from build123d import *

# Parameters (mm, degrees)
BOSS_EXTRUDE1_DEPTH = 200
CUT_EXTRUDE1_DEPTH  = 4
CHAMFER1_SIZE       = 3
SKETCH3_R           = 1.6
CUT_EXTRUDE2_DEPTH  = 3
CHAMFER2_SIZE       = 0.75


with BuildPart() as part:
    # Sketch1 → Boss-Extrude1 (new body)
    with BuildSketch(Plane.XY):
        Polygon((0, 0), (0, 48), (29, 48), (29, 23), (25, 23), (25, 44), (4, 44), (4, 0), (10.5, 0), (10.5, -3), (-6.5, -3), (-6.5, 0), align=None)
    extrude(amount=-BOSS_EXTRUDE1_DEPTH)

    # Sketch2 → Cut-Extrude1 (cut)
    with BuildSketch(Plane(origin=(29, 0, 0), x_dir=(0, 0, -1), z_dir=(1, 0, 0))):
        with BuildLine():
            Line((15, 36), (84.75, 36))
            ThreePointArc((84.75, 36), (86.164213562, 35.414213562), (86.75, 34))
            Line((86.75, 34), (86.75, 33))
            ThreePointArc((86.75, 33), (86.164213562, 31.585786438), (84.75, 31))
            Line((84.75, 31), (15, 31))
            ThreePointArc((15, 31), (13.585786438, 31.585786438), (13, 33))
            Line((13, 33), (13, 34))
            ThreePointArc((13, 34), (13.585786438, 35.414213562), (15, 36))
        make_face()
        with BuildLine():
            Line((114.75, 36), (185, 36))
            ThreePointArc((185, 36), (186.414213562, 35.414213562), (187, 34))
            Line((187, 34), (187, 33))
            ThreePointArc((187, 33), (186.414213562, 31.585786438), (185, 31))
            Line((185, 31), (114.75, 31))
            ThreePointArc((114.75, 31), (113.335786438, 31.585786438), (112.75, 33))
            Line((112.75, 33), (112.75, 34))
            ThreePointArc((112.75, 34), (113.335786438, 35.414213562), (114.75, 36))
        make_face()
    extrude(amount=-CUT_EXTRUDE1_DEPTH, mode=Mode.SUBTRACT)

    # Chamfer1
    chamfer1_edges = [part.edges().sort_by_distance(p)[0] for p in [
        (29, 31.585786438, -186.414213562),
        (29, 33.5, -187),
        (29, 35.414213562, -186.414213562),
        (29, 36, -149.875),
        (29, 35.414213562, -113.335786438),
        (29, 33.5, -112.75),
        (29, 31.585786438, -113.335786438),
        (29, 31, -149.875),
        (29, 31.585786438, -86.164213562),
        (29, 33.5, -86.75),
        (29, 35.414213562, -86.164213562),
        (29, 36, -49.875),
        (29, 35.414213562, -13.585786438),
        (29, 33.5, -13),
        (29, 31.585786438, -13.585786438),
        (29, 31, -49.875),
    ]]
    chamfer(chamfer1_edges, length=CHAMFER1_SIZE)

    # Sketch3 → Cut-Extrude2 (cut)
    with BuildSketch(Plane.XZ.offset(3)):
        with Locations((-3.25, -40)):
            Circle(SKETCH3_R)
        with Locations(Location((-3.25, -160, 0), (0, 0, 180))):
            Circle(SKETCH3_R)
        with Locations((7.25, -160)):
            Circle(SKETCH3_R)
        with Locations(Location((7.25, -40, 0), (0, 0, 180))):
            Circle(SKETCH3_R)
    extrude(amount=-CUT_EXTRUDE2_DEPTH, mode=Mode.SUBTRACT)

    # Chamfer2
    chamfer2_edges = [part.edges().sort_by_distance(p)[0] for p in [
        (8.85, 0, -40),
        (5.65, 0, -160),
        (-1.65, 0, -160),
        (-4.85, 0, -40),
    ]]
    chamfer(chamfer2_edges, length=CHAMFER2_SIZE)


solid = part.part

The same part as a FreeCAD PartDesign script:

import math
import FreeCAD as App
import Part
import Sketcher

V = App.Vector
Q = App.Units.Quantity


def edges_at(feature, points):
    """Names of the edges that pass closest to the given points."""
    edges = feature.Shape.Edges
    near = lambda p: min(range(len(edges)), key=lambda i: edges[i].distToShape(Part.Vertex(*p))[0])
    return sorted({f"Edge{near(p) + 1}" for p in points})


def add_polygon(sketch, points):
    """Adds a closed chain of lines whose ends are joined by coincident constraints."""
    first, n = sketch.GeometryCount, len(points)
    for a, b in zip(points, points[1:] + points[:1]):
        sketch.addGeometry(Part.LineSegment(App.Vector(*a, 0), App.Vector(*b, 0)), False)
    for i in range(n):
        sketch.addConstraint(Sketcher.Constraint("Coincident", first + i, 2, first + (i + 1) % n, 1))

doc = App.newDocument("Part")
params = doc.addObject("Spreadsheet::Sheet", "Params")
for row, (alias, value) in enumerate([
    ("sketch1_width", "17 mm"),
    ("sketch1_width2", "21 mm"),
    ("sketch1_width3", "4 mm"),
    ("sketch1_width4", "29 mm"),
    ("sketch1_height", "48 mm"),
    ("pad1_length", "200 mm"),
    ("sketch2_radius", "2 mm"),
    ("sketch2_width", "1 mm"),
    ("sketch2_height", "69.75 mm"),
    ("pocket1_length", "4 mm"),
    ("chamfer_size", "3 mm"),
    ("sketch3_diameter", "3.2 mm"),
    ("pocket2_length", "3 mm"),
    ("chamfer2_size", "0.75 mm"),
], start=1):
    params.set(f"A{row}", alias)
    params.set(f"B{row}", "=" + value)
    params.setAlias(f"B{row}", alias)

body = doc.addObject("PartDesign::Body", "Body")

# Sketch on XY plane
sketch1 = body.newObject("Sketcher::SketchObject", "Sketch")
sketch1.AttachmentSupport = (doc.getObject("XY_Plane"), [""])
sketch1.MapMode = "FlatFace"
add_polygon(sketch1, [(0, 48), (0, 0), (-6.5, 0), (-6.5, -3), (10.5, -3), (10.5, 0), (4, 0), (4, 44), (25, 44), (25, 23), (29, 23), (29, 48)])  # lines 0-11
sketch1.addConstraint(Sketcher.Constraint("Vertical", 0))
sketch1.addConstraint(Sketcher.Constraint("Horizontal", 1))
sketch1.addConstraint(Sketcher.Constraint("Vertical", 2))
sketch1.addConstraint(Sketcher.Constraint("Horizontal", 3))
sketch1.addConstraint(Sketcher.Constraint("Vertical", 4))
sketch1.addConstraint(Sketcher.Constraint("Horizontal", 5))
sketch1.addConstraint(Sketcher.Constraint("Vertical", 6))
sketch1.addConstraint(Sketcher.Constraint("Horizontal", 7))
sketch1.addConstraint(Sketcher.Constraint("Vertical", 8))
sketch1.addConstraint(Sketcher.Constraint("Horizontal", 9))
sketch1.addConstraint(Sketcher.Constraint("Vertical", 10))
sketch1.addConstraint(Sketcher.Constraint("Horizontal", 11))
sketch1.addConstraint(Sketcher.Constraint("Coincident", 0, 2, -1, 1))
sketch1.addConstraint(Sketcher.Constraint("PointOnObject", 4, 2, -1))
sketch1.addConstraint(Sketcher.Constraint("Equal", 1, 5))
sketch1.addConstraint(Sketcher.Constraint("Equal", 7, 8))
sketch1.addConstraint(Sketcher.Constraint("DistanceX", 3, 1, 3, 2, Q("17 mm")))
sketch1.addConstraint(Sketcher.Constraint("DistanceX", 7, 1, 7, 2, Q("21 mm")))
sketch1.addConstraint(Sketcher.Constraint("DistanceX", 9, 1, 9, 2, Q("4 mm")))
sketch1.addConstraint(Sketcher.Constraint("DistanceX", 11, 2, 11, 1, Q("29 mm")))
sketch1.addConstraint(Sketcher.Constraint("DistanceY", 0, 2, 0, 1, Q("48 mm")))
sketch1.addConstraint(Sketcher.Constraint("DistanceY", 2, 2, 2, 1, Q("3 mm")))
sketch1.addConstraint(Sketcher.Constraint("DistanceY", 6, 1, 6, 2, Q("44 mm")))
sketch1.setExpression("Constraints[28]", "Params.sketch1_width")
sketch1.setExpression("Constraints[29]", "Params.sketch1_width2")
sketch1.setExpression("Constraints[30]", "Params.sketch1_width3")
sketch1.setExpression("Constraints[31]", "Params.sketch1_width4")
sketch1.setExpression("Constraints[32]", "Params.sketch1_height")
pad1 = body.newObject("PartDesign::Pad", "Pad")
pad1.Profile = sketch1
pad1.setExpression("Length", "Params.pad1_length")
pad1.Reversed = True

# Sketch on YZ plane
sketch2 = body.newObject("Sketcher::SketchObject", "Sketch001")
sketch2.AttachmentSupport = (doc.getObject("YZ_Plane"), [""])
sketch2.MapMode = "FlatFace"
sketch2.AttachmentOffset = App.Placement(V(0, 0, 29), App.Rotation())
sketch2.addGeometry(Part.LineSegment(V(36, -84.8, 0), V(36, -15, 0)), False)
sketch2.addGeometry(Part.ArcOfCircle(Part.Circle(V(34, -15, 0), V(0, 0, 1), 2), math.radians(0), math.radians(90)), False)
sketch2.addGeometry(Part.LineSegment(V(34, -13, 0), V(33, -13, 0)), False)
sketch2.addGeometry(Part.ArcOfCircle(Part.Circle(V(33, -15, 0), V(0, 0, 1), 2), math.radians(90), math.radians(180)), False)
sketch2.addGeometry(Part.LineSegment(V(31, -15, 0), V(31, -84.8, 0)), False)
sketch2.addGeometry(Part.ArcOfCircle(Part.Circle(V(33, -84.7, 0), V(0, 0, 1), 2), math.radians(-180), math.radians(-90)), False)
sketch2.addGeometry(Part.LineSegment(V(33, -86.8, 0), V(34, -86.8, 0)), False)
sketch2.addGeometry(Part.ArcOfCircle(Part.Circle(V(34, -84.7, 0), V(0, 0, 1), 2), math.radians(-90), math.radians(0)), False)
sketch2.addGeometry(Part.LineSegment(V(36, -185, 0), V(36, -114.8, 0)), False)
sketch2.addGeometry(Part.ArcOfCircle(Part.Circle(V(34, -114.8, 0), V(0, 0, 1), 2), math.radians(0), math.radians(90)), False)
sketch2.addGeometry(Part.LineSegment(V(34, -112.8, 0), V(33, -112.8, 0)), False)
sketch2.addGeometry(Part.ArcOfCircle(Part.Circle(V(33, -114.8, 0), V(0, 0, 1), 2), math.radians(90), math.radians(180)), False)
sketch2.addGeometry(Part.LineSegment(V(31, -114.8, 0), V(31, -185, 0)), False)
sketch2.addGeometry(Part.ArcOfCircle(Part.Circle(V(33, -185, 0), V(0, 0, 1), 2), math.radians(-180), math.radians(-90)), False)
sketch2.addGeometry(Part.LineSegment(V(33, -187, 0), V(34, -187, 0)), False)
sketch2.addGeometry(Part.ArcOfCircle(Part.Circle(V(34, -185, 0), V(0, 0, 1), 2), math.radians(-90), math.radians(0)), False)
sketch2.addConstraint(Sketcher.Constraint("Tangent", 0, 2, 1, 1))
sketch2.addConstraint(Sketcher.Constraint("Tangent", 1, 2, 2, 1))
sketch2.addConstraint(Sketcher.Constraint("Tangent", 2, 2, 3, 1))
sketch2.addConstraint(Sketcher.Constraint("Tangent", 3, 2, 4, 1))
sketch2.addConstraint(Sketcher.Constraint("Tangent", 4, 2, 5, 1))
sketch2.addConstraint(Sketcher.Constraint("Tangent", 5, 2, 6, 1))
sketch2.addConstraint(Sketcher.Constraint("Tangent", 6, 2, 7, 1))
sketch2.addConstraint(Sketcher.Constraint("Tangent", 7, 2, 0, 1))
sketch2.addConstraint(Sketcher.Constraint("Tangent", 8, 2, 9, 1))
sketch2.addConstraint(Sketcher.Constraint("Tangent", 9, 2, 10, 1))
sketch2.addConstraint(Sketcher.Constraint("Tangent", 10, 2, 11, 1))
sketch2.addConstraint(Sketcher.Constraint("Tangent", 11, 2, 12, 1))
sketch2.addConstraint(Sketcher.Constraint("Tangent", 12, 2, 13, 1))
sketch2.addConstraint(Sketcher.Constraint("Tangent", 13, 2, 14, 1))
sketch2.addConstraint(Sketcher.Constraint("Tangent", 14, 2, 15, 1))
sketch2.addConstraint(Sketcher.Constraint("Tangent", 15, 2, 8, 1))
sketch2.addConstraint(Sketcher.Constraint("Vertical", 0))
sketch2.addConstraint(Sketcher.Constraint("Horizontal", 2))
sketch2.addConstraint(Sketcher.Constraint("Vertical", 4))
sketch2.addConstraint(Sketcher.Constraint("Horizontal", 6))
sketch2.addConstraint(Sketcher.Constraint("Vertical", 8))
sketch2.addConstraint(Sketcher.Constraint("Horizontal", 10))
sketch2.addConstraint(Sketcher.Constraint("Vertical", 12))
sketch2.addConstraint(Sketcher.Constraint("Horizontal", 14))
sketch2.addConstraint(Sketcher.Constraint("Equal", 1, 3))
sketch2.addConstraint(Sketcher.Constraint("Equal", 3, 5))
sketch2.addConstraint(Sketcher.Constraint("Equal", 5, 7))
sketch2.addConstraint(Sketcher.Constraint("Equal", 7, 9))
sketch2.addConstraint(Sketcher.Constraint("Equal", 9, 11))
sketch2.addConstraint(Sketcher.Constraint("Equal", 11, 13))
sketch2.addConstraint(Sketcher.Constraint("Equal", 13, 15))
sketch2.addConstraint(Sketcher.Constraint("Vertical", 7, 3, 9, 3))
sketch2.addConstraint(Sketcher.Constraint("Vertical", 5, 3, 11, 3))
sketch2.addConstraint(Sketcher.Constraint("Radius", 1, Q("2 mm")))
sketch2.addConstraint(Sketcher.Constraint("DistanceX", 2, 2, 2, 1, Q("1 mm")))
sketch2.addConstraint(Sketcher.Constraint("DistanceX", -1, 1, 1, 3, Q("34 mm")))
sketch2.addConstraint(Sketcher.Constraint("DistanceY", 1, 3, -1, 1, Q("15 mm")))
sketch2.addConstraint(Sketcher.Constraint("DistanceY", 13, 3, -1, 1, Q("185 mm")))
sketch2.addConstraint(Sketcher.Constraint("DistanceY", 9, 3, 7, 3, Q("30 mm")))
sketch2.addConstraint(Sketcher.Constraint("DistanceY", 0, 1, 0, 2, Q("69.75 mm")))
sketch2.setExpression("Constraints[33]", "Params.sketch2_radius")
sketch2.setExpression("Constraints[34]", "Params.sketch2_width")
sketch2.setExpression("Constraints[39]", "Params.sketch2_height")
pocket1 = body.newObject("PartDesign::Pocket", "Pocket")
pocket1.Profile = sketch2
pocket1.setExpression("Length", "Params.pocket1_length")
doc.recompute()

chamfer = body.newObject("PartDesign::Chamfer", "Chamfer")
chamfer.Base = (pocket1, edges_at(pocket1, [
    (29, 31.586, -186.414),
    (29, 33.5, -187),
    (29, 35.414, -186.414),
    (29, 36, -149.875),
    (29, 35.414, -113.336),
    (29, 33.5, -112.75),
    (29, 31.586, -113.336),
    (29, 31, -149.875),
    (29, 31.586, -86.164),
    (29, 33.5, -86.75),
    (29, 35.414, -86.164),
    (29, 36, -49.875),
    (29, 35.414, -13.586),
    (29, 33.5, -13),
    (29, 31.586, -13.586),
    (29, 31, -49.875),
]))
chamfer.setExpression("Size", "Params.chamfer_size")

# Sketch on XZ plane
sketch3 = body.newObject("Sketcher::SketchObject", "Sketch002")
sketch3.AttachmentSupport = (doc.getObject("XZ_Plane"), [""])
sketch3.MapMode = "FlatFace"
sketch3.AttachmentOffset = App.Placement(V(0, 0, 3), App.Rotation())
sketch3.addGeometry(Part.Circle(V(-3.2, -40, 0), V(0, 0, 1), 1.6), False)
sketch3.addGeometry(Part.Circle(V(-3.2, -160, 0), V(0, 0, 1), 1.6), False)
sketch3.addGeometry(Part.Circle(V(7.2, -160, 0), V(0, 0, 1), 1.6), False)
sketch3.addGeometry(Part.Circle(V(7.2, -40, 0), V(0, 0, 1), 1.6), False)
sketch3.addConstraint(Sketcher.Constraint("Equal", 0, 1))
sketch3.addConstraint(Sketcher.Constraint("Equal", 1, 2))
sketch3.addConstraint(Sketcher.Constraint("Equal", 2, 3))
sketch3.addConstraint(Sketcher.Constraint("Horizontal", 1, 3, 2, 3))
sketch3.addConstraint(Sketcher.Constraint("Horizontal", 0, 3, 3, 3))
sketch3.addConstraint(Sketcher.Constraint("Vertical", 0, 3, 1, 3))
sketch3.addConstraint(Sketcher.Constraint("Vertical", 2, 3, 3, 3))
sketch3.addConstraint(Sketcher.Constraint("Diameter", 0, Q("3.2 mm")))
sketch3.addConstraint(Sketcher.Constraint("DistanceY", 0, 3, -1, 1, Q("40 mm")))
sketch3.addConstraint(Sketcher.Constraint("DistanceY", 1, 3, -1, 1, Q("160 mm")))
sketch3.addConstraint(Sketcher.Constraint("DistanceX", 1, 3, 2, 3, Q("10.5 mm")))
sketch3.addConstraint(Sketcher.Constraint("DistanceX", 0, 3, -1, 1, Q("3.25 mm")))
sketch3.setExpression("Constraints[7]", "Params.sketch3_diameter")
pocket2 = body.newObject("PartDesign::Pocket", "Pocket001")
pocket2.Profile = sketch3
pocket2.setExpression("Length", "Params.pocket2_length")
doc.recompute()

chamfer2 = body.newObject("PartDesign::Chamfer", "Chamfer001")
chamfer2.Base = (pocket2, edges_at(pocket2, [
    (8.85, 0, -40),
    (5.65, 0, -160),
    (-1.65, 0, -160),
    (-4.85, 0, -40),
]))
chamfer2.setExpression("Size", "Params.chamfer2_size")

doc.recompute()
